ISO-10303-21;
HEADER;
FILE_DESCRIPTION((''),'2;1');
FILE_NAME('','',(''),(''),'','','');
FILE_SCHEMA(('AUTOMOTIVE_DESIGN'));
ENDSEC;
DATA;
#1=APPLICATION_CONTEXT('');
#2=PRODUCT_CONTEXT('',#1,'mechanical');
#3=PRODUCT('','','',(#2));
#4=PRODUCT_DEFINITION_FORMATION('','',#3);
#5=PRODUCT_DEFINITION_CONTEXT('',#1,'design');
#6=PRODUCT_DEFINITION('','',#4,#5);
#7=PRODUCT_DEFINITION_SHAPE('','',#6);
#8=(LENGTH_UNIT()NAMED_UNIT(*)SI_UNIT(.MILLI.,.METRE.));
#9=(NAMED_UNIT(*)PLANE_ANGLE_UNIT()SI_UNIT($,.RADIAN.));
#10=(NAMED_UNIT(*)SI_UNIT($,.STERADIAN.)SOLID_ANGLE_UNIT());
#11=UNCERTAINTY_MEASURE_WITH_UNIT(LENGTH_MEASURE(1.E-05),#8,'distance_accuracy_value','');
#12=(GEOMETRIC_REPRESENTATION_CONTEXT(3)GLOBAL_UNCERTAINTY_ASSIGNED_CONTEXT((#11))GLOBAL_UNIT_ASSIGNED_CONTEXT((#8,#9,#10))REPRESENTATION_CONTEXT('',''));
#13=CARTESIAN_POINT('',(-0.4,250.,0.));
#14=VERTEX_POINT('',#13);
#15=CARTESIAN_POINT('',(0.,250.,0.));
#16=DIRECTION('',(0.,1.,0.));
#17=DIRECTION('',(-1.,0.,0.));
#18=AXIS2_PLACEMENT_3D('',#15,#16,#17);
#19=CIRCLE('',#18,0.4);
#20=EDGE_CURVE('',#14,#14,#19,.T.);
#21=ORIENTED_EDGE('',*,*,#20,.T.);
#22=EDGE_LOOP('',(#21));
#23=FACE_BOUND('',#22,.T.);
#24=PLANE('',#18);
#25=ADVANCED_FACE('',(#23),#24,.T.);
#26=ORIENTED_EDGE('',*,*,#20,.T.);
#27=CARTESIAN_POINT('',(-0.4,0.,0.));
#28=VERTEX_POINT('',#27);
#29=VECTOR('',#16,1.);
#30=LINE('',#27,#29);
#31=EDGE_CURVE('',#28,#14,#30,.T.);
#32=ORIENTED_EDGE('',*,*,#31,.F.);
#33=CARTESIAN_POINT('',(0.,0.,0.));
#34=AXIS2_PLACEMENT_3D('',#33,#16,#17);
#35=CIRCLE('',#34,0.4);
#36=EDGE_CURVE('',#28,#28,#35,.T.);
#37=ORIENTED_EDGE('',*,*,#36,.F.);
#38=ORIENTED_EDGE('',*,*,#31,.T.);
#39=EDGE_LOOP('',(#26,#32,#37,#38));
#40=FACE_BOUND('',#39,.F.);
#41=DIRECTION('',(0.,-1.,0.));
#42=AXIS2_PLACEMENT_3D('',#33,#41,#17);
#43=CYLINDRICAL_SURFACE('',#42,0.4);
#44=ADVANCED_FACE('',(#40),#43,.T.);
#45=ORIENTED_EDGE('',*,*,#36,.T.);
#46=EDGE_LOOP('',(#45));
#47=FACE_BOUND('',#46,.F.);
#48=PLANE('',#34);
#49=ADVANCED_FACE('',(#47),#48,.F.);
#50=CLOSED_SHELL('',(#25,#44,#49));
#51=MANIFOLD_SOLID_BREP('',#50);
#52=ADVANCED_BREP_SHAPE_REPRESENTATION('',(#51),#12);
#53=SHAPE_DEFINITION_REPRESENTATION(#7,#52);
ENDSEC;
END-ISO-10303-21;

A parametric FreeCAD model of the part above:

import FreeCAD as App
import Part
import Sketcher
from FreeCAD import Vector
Q = App.Units.Quantity

doc = App.newDocument("Part")
params = doc.addObject("Spreadsheet::Sheet", "Params")
for row, (alias, value) in enumerate([
    ("sketch1_diameter", "0.8 mm"),
    ("pad1_length", "250 mm"),
], start=1):
    params.set(f"A{row}", alias)
    params.set(f"B{row}", "=" + value)
    params.setAlias(f"B{row}", alias)

body = doc.addObject("PartDesign::Body", "Body")

# Sketch on XZ plane
sketch1 = body.newObject("Sketcher::SketchObject", "Sketch")
sketch1.AttachmentSupport = (doc.getObject("XZ_Plane"), [""])
sketch1.MapMode = "FlatFace"
sketch1.addGeometry(Part.Circle(Vector(0, 0, 0), Vector(0, 0, 1), 0.4), False)
sketch1.addConstraint([
    Sketcher.Constraint("Coincident", 0, 3, -1, 1),
    Sketcher.Constraint("Diameter", 0, Q("0.8 mm")),
])
sketch1.setExpression("Constraints[1]", "Params.sketch1_diameter")
pad1 = body.newObject("PartDesign::Pad", "Pad")
pad1.Profile = sketch1
pad1.setExpression("Length", "Params.pad1_length")
pad1.Reversed = True

doc.recompute()
